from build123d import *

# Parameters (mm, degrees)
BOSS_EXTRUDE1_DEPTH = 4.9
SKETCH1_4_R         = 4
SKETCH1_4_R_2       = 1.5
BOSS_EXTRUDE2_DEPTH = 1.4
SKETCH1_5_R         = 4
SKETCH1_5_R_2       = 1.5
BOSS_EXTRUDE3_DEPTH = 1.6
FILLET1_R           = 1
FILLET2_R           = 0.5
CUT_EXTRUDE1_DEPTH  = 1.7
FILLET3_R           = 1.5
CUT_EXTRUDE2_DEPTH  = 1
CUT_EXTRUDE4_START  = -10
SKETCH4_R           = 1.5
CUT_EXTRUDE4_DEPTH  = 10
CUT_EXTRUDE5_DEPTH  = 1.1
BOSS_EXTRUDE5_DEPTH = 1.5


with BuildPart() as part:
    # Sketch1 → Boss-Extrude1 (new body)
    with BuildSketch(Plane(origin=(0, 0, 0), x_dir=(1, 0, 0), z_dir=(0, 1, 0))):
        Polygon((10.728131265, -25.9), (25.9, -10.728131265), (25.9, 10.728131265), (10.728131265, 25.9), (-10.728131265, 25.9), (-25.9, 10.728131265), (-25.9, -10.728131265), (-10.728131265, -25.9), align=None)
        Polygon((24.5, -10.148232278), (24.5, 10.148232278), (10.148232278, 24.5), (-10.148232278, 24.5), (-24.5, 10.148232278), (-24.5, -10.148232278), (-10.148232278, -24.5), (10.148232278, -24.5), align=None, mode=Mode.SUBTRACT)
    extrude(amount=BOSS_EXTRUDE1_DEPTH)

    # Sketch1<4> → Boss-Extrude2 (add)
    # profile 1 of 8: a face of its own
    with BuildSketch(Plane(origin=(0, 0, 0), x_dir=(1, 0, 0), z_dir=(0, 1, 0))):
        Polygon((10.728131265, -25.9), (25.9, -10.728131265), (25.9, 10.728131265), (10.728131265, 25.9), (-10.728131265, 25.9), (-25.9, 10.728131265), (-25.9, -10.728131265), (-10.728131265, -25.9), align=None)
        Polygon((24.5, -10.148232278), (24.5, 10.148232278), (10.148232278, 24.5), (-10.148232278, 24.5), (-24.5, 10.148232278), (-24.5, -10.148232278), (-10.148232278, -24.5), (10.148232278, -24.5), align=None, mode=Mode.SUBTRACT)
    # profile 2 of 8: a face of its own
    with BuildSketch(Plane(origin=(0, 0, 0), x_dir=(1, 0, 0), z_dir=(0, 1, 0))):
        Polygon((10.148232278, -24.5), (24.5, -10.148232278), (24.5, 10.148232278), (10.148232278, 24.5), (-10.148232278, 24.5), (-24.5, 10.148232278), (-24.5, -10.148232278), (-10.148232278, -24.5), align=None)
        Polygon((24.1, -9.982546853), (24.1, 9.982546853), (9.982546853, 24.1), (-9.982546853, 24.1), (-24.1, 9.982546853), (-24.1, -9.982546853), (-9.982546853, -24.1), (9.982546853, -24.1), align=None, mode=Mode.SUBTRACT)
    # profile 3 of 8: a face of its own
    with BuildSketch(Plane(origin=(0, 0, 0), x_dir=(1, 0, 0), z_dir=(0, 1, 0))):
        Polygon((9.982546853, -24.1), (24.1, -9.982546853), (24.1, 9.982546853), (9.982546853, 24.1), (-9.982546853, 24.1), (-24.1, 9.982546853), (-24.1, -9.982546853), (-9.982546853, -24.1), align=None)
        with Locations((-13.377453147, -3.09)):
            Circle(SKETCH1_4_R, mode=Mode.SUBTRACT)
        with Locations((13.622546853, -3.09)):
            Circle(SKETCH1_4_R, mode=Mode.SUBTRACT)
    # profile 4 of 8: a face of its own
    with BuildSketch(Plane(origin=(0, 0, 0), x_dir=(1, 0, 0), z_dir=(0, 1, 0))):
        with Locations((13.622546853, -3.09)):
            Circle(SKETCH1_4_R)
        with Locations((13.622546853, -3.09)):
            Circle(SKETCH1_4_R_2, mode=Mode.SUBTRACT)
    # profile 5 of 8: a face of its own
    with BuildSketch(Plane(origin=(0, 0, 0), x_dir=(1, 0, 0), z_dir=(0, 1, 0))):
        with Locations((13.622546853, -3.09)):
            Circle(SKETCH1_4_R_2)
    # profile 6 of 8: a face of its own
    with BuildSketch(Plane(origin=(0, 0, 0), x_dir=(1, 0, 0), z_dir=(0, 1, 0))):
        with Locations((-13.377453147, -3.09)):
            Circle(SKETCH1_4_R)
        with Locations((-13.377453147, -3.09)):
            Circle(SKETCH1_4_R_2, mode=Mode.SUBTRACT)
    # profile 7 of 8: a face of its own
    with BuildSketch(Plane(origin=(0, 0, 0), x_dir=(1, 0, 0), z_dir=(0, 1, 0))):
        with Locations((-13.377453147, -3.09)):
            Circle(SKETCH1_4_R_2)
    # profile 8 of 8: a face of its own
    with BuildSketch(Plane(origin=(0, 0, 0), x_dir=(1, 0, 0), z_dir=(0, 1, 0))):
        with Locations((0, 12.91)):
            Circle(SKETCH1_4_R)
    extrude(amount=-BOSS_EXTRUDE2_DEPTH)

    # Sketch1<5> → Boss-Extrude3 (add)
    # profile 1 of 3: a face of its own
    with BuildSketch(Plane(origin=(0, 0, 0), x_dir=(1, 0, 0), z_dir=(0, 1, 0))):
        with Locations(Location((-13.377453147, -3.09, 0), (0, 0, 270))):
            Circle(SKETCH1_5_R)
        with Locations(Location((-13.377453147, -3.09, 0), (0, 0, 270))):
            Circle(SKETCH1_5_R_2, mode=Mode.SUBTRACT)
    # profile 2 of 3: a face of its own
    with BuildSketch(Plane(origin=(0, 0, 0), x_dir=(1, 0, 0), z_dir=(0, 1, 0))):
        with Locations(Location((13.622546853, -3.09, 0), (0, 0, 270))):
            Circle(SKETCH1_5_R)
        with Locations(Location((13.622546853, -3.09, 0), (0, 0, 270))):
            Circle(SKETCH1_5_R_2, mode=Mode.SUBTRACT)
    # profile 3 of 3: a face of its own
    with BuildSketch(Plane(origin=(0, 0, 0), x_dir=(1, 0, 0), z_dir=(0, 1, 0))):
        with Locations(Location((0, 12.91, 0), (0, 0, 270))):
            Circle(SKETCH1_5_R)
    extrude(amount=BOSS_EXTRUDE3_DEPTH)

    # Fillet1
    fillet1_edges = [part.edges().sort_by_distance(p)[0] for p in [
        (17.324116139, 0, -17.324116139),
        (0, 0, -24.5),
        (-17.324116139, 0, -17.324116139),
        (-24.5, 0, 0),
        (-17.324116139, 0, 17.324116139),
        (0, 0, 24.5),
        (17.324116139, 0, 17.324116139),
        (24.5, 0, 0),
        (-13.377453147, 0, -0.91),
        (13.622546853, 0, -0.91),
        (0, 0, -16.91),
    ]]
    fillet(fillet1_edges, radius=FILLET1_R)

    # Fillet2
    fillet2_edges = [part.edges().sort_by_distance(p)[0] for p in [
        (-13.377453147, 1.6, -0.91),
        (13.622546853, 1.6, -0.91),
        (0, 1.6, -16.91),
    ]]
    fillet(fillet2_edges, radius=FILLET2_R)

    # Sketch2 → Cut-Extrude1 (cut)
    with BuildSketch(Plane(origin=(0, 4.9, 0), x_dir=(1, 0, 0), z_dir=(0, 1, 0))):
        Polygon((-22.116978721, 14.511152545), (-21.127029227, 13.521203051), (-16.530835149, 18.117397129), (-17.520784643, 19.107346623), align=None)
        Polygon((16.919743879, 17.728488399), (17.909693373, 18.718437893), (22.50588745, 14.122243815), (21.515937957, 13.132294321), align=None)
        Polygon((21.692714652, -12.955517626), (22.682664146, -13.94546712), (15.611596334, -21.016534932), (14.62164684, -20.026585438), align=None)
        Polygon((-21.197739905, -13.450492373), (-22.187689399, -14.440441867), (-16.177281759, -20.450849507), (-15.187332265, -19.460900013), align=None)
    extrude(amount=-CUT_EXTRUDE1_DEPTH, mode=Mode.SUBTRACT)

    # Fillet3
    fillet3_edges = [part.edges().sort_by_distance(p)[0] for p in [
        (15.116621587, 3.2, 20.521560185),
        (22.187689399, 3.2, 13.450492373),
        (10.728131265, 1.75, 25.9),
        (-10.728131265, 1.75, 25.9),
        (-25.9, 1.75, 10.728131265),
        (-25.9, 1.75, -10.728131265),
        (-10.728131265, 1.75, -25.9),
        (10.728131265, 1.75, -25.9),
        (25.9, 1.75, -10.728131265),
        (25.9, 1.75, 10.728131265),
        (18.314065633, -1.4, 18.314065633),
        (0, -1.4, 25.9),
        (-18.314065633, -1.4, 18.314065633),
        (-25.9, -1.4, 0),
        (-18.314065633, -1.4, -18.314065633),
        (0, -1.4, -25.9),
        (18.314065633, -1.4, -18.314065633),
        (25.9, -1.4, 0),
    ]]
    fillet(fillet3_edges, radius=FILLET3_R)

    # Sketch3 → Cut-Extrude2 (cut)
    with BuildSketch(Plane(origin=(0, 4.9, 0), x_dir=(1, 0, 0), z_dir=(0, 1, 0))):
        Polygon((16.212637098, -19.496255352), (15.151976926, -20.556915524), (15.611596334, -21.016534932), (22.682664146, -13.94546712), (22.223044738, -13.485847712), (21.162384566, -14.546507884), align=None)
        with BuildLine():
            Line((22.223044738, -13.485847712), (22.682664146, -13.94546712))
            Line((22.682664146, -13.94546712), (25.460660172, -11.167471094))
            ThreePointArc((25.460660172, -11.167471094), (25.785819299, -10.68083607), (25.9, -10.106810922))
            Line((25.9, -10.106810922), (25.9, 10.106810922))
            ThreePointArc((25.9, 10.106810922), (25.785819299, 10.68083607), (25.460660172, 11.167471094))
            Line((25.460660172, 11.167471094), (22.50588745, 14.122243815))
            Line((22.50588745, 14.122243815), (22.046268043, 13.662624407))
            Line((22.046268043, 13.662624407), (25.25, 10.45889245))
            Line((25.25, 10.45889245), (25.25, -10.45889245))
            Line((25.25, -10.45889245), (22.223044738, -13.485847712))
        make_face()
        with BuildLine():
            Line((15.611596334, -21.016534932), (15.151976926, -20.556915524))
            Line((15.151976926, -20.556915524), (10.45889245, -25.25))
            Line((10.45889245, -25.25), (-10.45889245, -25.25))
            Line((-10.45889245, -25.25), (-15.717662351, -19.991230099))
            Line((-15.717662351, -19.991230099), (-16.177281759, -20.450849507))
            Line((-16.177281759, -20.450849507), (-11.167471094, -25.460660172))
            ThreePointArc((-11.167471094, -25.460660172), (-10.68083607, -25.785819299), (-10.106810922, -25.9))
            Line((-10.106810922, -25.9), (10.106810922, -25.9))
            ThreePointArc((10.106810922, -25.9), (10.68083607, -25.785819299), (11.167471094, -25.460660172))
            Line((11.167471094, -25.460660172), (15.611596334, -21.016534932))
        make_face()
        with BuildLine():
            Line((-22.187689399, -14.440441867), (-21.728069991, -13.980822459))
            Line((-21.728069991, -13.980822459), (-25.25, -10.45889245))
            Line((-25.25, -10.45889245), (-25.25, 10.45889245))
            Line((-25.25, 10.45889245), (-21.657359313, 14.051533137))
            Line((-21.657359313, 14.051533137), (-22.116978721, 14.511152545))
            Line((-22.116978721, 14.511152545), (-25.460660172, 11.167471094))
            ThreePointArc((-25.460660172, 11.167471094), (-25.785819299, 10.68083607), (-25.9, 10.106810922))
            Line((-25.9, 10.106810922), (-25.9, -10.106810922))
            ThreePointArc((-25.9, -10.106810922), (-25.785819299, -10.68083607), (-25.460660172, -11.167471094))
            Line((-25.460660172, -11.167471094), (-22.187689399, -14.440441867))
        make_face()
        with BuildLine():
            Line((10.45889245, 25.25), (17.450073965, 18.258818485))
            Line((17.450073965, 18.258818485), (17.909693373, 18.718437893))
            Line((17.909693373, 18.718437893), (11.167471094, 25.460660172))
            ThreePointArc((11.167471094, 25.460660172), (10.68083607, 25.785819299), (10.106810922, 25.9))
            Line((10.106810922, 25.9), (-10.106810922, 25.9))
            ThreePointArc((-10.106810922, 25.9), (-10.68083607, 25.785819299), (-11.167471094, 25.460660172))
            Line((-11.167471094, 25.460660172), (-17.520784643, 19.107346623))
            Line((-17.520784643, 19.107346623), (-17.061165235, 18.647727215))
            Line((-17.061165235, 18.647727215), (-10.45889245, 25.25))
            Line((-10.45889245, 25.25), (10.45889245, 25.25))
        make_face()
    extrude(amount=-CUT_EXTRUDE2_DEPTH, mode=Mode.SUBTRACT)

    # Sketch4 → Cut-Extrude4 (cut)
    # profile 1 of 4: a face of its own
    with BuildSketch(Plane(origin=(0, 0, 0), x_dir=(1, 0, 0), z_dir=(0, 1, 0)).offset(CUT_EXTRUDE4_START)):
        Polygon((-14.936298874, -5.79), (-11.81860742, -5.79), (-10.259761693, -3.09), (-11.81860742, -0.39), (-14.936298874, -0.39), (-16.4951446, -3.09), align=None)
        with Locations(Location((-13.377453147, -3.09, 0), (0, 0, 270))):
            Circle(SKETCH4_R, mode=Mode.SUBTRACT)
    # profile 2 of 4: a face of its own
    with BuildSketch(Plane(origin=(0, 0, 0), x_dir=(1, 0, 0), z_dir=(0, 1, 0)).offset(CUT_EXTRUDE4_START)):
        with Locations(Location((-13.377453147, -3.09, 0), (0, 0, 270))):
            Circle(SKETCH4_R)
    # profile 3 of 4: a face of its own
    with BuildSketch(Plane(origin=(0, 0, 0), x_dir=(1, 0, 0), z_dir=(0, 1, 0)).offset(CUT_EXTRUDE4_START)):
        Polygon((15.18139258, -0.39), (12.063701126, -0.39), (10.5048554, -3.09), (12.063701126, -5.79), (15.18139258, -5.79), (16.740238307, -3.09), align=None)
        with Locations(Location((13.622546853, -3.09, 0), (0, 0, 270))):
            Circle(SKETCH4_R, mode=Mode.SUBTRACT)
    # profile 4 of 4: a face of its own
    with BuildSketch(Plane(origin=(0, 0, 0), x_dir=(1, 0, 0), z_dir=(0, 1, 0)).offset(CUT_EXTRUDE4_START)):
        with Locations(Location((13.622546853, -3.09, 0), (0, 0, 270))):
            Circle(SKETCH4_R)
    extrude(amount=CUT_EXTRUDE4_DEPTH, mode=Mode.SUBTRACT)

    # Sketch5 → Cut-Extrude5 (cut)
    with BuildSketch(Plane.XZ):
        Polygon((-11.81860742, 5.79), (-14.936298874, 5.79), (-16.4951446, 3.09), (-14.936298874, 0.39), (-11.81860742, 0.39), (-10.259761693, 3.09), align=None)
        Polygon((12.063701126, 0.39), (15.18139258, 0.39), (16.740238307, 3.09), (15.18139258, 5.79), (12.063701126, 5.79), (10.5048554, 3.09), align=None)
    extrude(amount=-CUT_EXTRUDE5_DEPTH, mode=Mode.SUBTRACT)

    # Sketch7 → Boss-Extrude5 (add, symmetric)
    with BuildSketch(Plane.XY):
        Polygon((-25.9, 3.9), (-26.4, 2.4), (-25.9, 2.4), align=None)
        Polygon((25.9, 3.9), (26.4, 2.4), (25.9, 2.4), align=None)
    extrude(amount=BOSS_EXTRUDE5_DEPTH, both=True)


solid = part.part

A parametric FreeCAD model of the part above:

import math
import FreeCAD as App
import Part
import Sketcher

V = App.Vector
Q = App.Units.Quantity


def edges_at(feature, points):
    """Names of the edges that pass closest to the given points."""
    edges = feature.Shape.Edges
    near = lambda p: min(range(len(edges)), key=lambda i: edges[i].distToShape(Part.Vertex(*p))[0])
    return sorted({f"Edge{near(p) + 1}" for p in points})

doc = App.newDocument("Part")
params = doc.addObject("Spreadsheet::Sheet", "Params")
for row, (alias, value) in enumerate([
    ("pad1_length", "4.9 mm"),
    ("pad2_length", "1.4 mm"),
    ("sketch3_diameter", "8 mm"),
    ("sketch3_diameter2", "3 mm"),
    ("pad3_length", "1.6 mm"),
    ("fillet_radius", "1 mm"),
    ("fillet2_radius", "0.5 mm"),
    ("sketch4_length", "10 mm"),
    ("sketch4_length2", "1.4 mm"),
    ("sketch4_length3", "6.5 mm"),
    ("sketch4_length4", "8.5 mm"),
    ("pocket1_length", "1.7 mm"),
    ("fillet3_radius", "1.5 mm"),
    ("sketch5_radius", "1.5 mm"),
    ("sketch5_length", "0.65 mm"),
    ("pocket2_length", "1 mm"),
    ("pocket3_length", "10 mm"),
    ("pocket4_length", "1.1 mm"),
    ("sketch8_width", "0.5 mm"),
    ("sketch8_height", "1.5 mm"),
    ("pad4_length", "3 mm"),
], start=1):
    params.set(f"A{row}", alias)
    params.set(f"B{row}", "=" + value)
    params.setAlias(f"B{row}", alias)

body = doc.addObject("PartDesign::Body", "Body")

# Sketch on XZ plane
sketch1 = body.newObject("Sketcher::SketchObject", "Sketch")
sketch1.AttachmentSupport = (doc.getObject("XZ_Plane"), [""])
sketch1.MapMode = "FlatFace"
sketch1.addGeometry(Part.LineSegment(V(10.728131, 25.9, 0), V(25.9, 10.728131, 0)), False)
sketch1.addGeometry(Part.LineSegment(V(25.9, 10.728131, 0), V(25.9, -10.728131, 0)), False)
sketch1.addGeometry(Part.LineSegment(V(25.9, -10.728131, 0), V(10.728131, -25.9, 0)), False)
sketch1.addGeometry(Part.LineSegment(V(10.728131, -25.9, 0), V(-10.728131, -25.9, 0)), False)
sketch1.addGeometry(Part.LineSegment(V(-10.728131, -25.9, 0), V(-25.9, -10.728131, 0)), False)
sketch1.addGeometry(Part.LineSegment(V(-25.9, -10.728131, 0), V(-25.9, 10.728131, 0)), False)
sketch1.addGeometry(Part.LineSegment(V(-25.9, 10.728131, 0), V(-10.728131, 25.9, 0)), False)
sketch1.addGeometry(Part.LineSegment(V(-10.728131, 25.9, 0), V(10.728131, 25.9, 0)), False)
sketch1.addGeometry(Part.LineSegment(V(24.5, -10.148232, 0), V(24.5, 10.148232, 0)), False)
sketch1.addGeometry(Part.LineSegment(V(24.5, 10.148232, 0), V(10.148232, 24.5, 0)), False)
sketch1.addGeometry(Part.LineSegment(V(10.148232, 24.5, 0), V(-10.148232, 24.5, 0)), False)
sketch1.addGeometry(Part.LineSegment(V(-10.148232, 24.5, 0), V(-24.5, 10.148232, 0)), False)
sketch1.addGeometry(Part.LineSegment(V(-24.5, 10.148232, 0), V(-24.5, -10.148232, 0)), False)
sketch1.addGeometry(Part.LineSegment(V(-24.5, -10.148232, 0), V(-10.148232, -24.5, 0)), False)
sketch1.addGeometry(Part.LineSegment(V(-10.148232, -24.5, 0), V(10.148232, -24.5, 0)), False)
sketch1.addGeometry(Part.LineSegment(V(10.148232, -24.5, 0), V(24.5, -10.148232, 0)), False)
sketch1.addConstraint(Sketcher.Constraint("Coincident", 0, 2, 1, 1))
sketch1.addConstraint(Sketcher.Constraint("Coincident", 1, 2, 2, 1))
sketch1.addConstraint(Sketcher.Constraint("Coincident", 2, 2, 3, 1))
sketch1.addConstraint(Sketcher.Constraint("Coincident", 3, 2, 4, 1))
sketch1.addConstraint(Sketcher.Constraint("Coincident", 4, 2, 5, 1))
sketch1.addConstraint(Sketcher.Constraint("Coincident", 5, 2, 6, 1))
sketch1.addConstraint(Sketcher.Constraint("Coincident", 6, 2, 7, 1))
sketch1.addConstraint(Sketcher.Constraint("Coincident", 7, 2, 0, 1))
sketch1.addConstraint(Sketcher.Constraint("Coincident", 8, 2, 9, 1))
sketch1.addConstraint(Sketcher.Constraint("Coincident", 9, 2, 10, 1))
sketch1.addConstraint(Sketcher.Constraint("Coincident", 10, 2, 11, 1))
sketch1.addConstraint(Sketcher.Constraint("Coincident", 11, 2, 12, 1))
sketch1.addConstraint(Sketcher.Constraint("Coincident", 12, 2, 13, 1))
sketch1.addConstraint(Sketcher.Constraint("Coincident", 13, 2, 14, 1))
sketch1.addConstraint(Sketcher.Constraint("Coincident", 14, 2, 15, 1))
sketch1.addConstraint(Sketcher.Constraint("Coincident", 15, 2, 8, 1))
sketch1.addConstraint(Sketcher.Constraint("Vertical", 1))
sketch1.addConstraint(Sketcher.Constraint("Horizontal", 3))
sketch1.addConstraint(Sketcher.Constraint("Vertical", 5))
sketch1.addConstraint(Sketcher.Constraint("Horizontal", 7))
sketch1.addConstraint(Sketcher.Constraint("Vertical", 8))
sketch1.addConstraint(Sketcher.Constraint("Horizontal", 10))
sketch1.addConstraint(Sketcher.Constraint("Vertical", 12))
sketch1.addConstraint(Sketcher.Constraint("Horizontal", 14))
sketch1.addConstraint(Sketcher.Constraint("Symmetric", 0, 2, 4, 2, -1, 1))
sketch1.addConstraint(Sketcher.Constraint("Symmetric", 2, 2, 6, 2, -1, 1))
sketch1.addConstraint(Sketcher.Constraint("Symmetric", 8, 2, 12, 2, -1, 1))
sketch1.addConstraint(Sketcher.Constraint("Symmetric", 9, 2, 13, 2, -1, 1))
sketch1.addConstraint(Sketcher.Constraint("Perpendicular", 0, 2))
sketch1.addConstraint(Sketcher.Constraint("Perpendicular", 2, 4))
sketch1.addConstraint(Sketcher.Constraint("Perpendicular", 4, 6))
sketch1.addConstraint(Sketcher.Constraint("Perpendicular", 6, 9))
sketch1.addConstraint(Sketcher.Constraint("Perpendicular", 9, 11))
sketch1.addConstraint(Sketcher.Constraint("Perpendicular", 13, 15))
sketch1.addConstraint(Sketcher.Constraint("Horizontal", 1, 2, 4, 2))
sketch1.addConstraint(Sketcher.Constraint("Horizontal", 8, 2, 11, 2))
sketch1.addConstraint(Sketcher.Constraint("Horizontal", 12, 2, 15, 2))
sketch1.addConstraint(Sketcher.Constraint("Vertical", 3, 2, 6, 2))
sketch1.addConstraint(Sketcher.Constraint("Equal", 7, 1))
sketch1.addConstraint(Sketcher.Constraint("Equal", 14, 8))
sketch1.addConstraint(Sketcher.Constraint("DistanceX", -1, 1, 0, 2, 25.9))
sketch1.addConstraint(Sketcher.Constraint("DistanceX", -1, 1, 8, 2, 24.5))
sketch1.addConstraint(Sketcher.Constraint("DistanceY", 8, 2, 0, 2, 0.579899))
sketch1.addConstraint(Sketcher.Constraint("DistanceX", 3, 2, 3, 1, 21.456263))
pad1 = body.newObject("PartDesign::Pad", "Pad")
pad1.Profile = sketch1
pad1.setExpression("Length", "Params.pad1_length")
pad1.Reversed = True

# Sketch on XZ plane
sketch2 = body.newObject("Sketcher::SketchObject", "Sketch001")
sketch2.AttachmentSupport = (doc.getObject("XZ_Plane"), [""])
sketch2.MapMode = "FlatFace"
sketch2.addGeometry(Part.LineSegment(V(10.728131, 25.9, 0), V(25.9, 10.728131, 0)), False)
sketch2.addGeometry(Part.LineSegment(V(25.9, 10.728131, 0), V(25.9, -10.728131, 0)), False)
sketch2.addGeometry(Part.LineSegment(V(25.9, -10.728131, 0), V(10.728131, -25.9, 0)), False)
sketch2.addGeometry(Part.LineSegment(V(10.728131, -25.9, 0), V(-10.728131, -25.9, 0)), False)
sketch2.addGeometry(Part.LineSegment(V(-10.728131, -25.9, 0), V(-25.9, -10.728131, 0)), False)
sketch2.addGeometry(Part.LineSegment(V(-25.9, -10.728131, 0), V(-25.9, 10.728131, 0)), False)
sketch2.addGeometry(Part.LineSegment(V(-25.9, 10.728131, 0), V(-10.728131, 25.9, 0)), False)
sketch2.addGeometry(Part.LineSegment(V(-10.728131, 25.9, 0), V(10.728131, 25.9, 0)), False)
sketch2.addConstraint(Sketcher.Constraint("Coincident", 0, 2, 1, 1))
sketch2.addConstraint(Sketcher.Constraint("Coincident", 1, 2, 2, 1))
sketch2.addConstraint(Sketcher.Constraint("Coincident", 2, 2, 3, 1))
sketch2.addConstraint(Sketcher.Constraint("Coincident", 3, 2, 4, 1))
sketch2.addConstraint(Sketcher.Constraint("Coincident", 4, 2, 5, 1))
sketch2.addConstraint(Sketcher.Constraint("Coincident", 5, 2, 6, 1))
sketch2.addConstraint(Sketcher.Constraint("Coincident", 6, 2, 7, 1))
sketch2.addConstraint(Sketcher.Constraint("Coincident", 7, 2, 0, 1))
sketch2.addConstraint(Sketcher.Constraint("Vertical", 1))
sketch2.addConstraint(Sketcher.Constraint("Horizontal", 3))
sketch2.addConstraint(Sketcher.Constraint("Vertical", 5))
sketch2.addConstraint(Sketcher.Constraint("Horizontal", 7))
sketch2.addConstraint(Sketcher.Constraint("Symmetric", 0, 2, 4, 2, -1, 1))
sketch2.addConstraint(Sketcher.Constraint("Symmetric", 2, 2, 6, 2, -1, 1))
sketch2.addConstraint(Sketcher.Constraint("Perpendicular", 0, 2))
sketch2.addConstraint(Sketcher.Constraint("Perpendicular", 2, 4))
sketch2.addConstraint(Sketcher.Constraint("Perpendicular", 4, 6))
sketch2.addConstraint(Sketcher.Constraint("Horizontal", 1, 2, 4, 2))
sketch2.addConstraint(Sketcher.Constraint("Vertical", 3, 2, 6, 2))
sketch2.addConstraint(Sketcher.Constraint("Equal", 7, 1))
sketch2.addConstraint(Sketcher.Constraint("DistanceX", -1, 1, 0, 2, 25.9))
sketch2.addConstraint(Sketcher.Constraint("DistanceX", 3, 2, 3, 1, 21.456263))
pad2 = body.newObject("PartDesign::Pad", "Pad001")
pad2.Profile = sketch2
pad2.setExpression("Length", "Params.pad2_length")

# Sketch on XZ plane
sketch3 = body.newObject("Sketcher::SketchObject", "Sketch002")
sketch3.AttachmentSupport = (doc.getObject("XZ_Plane"), [""])
sketch3.MapMode = "FlatFace"
sketch3.addGeometry(Part.Circle(V(-13.377453, 3.09, 0), V(0, 0, 1), 4), False)
sketch3.addGeometry(Part.Circle(V(-13.377453, 3.09, 0), V(0, 0, 1), 1.5), False)
sketch3.addGeometry(Part.Circle(V(13.622547, 3.09, 0), V(0, 0, 1), 4), False)
sketch3.addGeometry(Part.Circle(V(13.622547, 3.09, 0), V(0, 0, 1), 1.5), False)
sketch3.addGeometry(Part.Circle(V(0, -12.91, 0), V(0, 0, 1), 4), False)
sketch3.addConstraint(Sketcher.Constraint("Coincident", 1, 3, 0, 3))
sketch3.addConstraint(Sketcher.Constraint("Coincident", 3, 3, 2, 3))
sketch3.addConstraint(Sketcher.Constraint("Equal", 0, 2))
sketch3.addConstraint(Sketcher.Constraint("Equal", 1, 3))
sketch3.addConstraint(Sketcher.Constraint("Equal", 2, 4))
sketch3.addConstraint(Sketcher.Constraint("PointOnObject", 4, 3, -2))
sketch3.addConstraint(Sketcher.Constraint("Horizontal", 1, 3, 2, 3))
sketch3.addConstraint(Sketcher.Constraint("Diameter", 0, 8.0))
sketch3.addConstraint(Sketcher.Constraint("Diameter", 1, 3.0))
sketch3.addConstraint(Sketcher.Constraint("DistanceX", 0, 3, 2, 3, 27.0))
sketch3.addConstraint(Sketcher.Constraint("DistanceY", 4, 3, 0, 3, 16.0))
sketch3.addConstraint(Sketcher.Constraint("DistanceY", -1, 1, 0, 3, 3.09))
sketch3.addConstraint(Sketcher.Constraint("DistanceX", 0, 3, -1, 1, 13.377453))
sketch3.setExpression("Constraints[7]", "Params.sketch3_diameter")
sketch3.setExpression("Constraints[8]", "Params.sketch3_diameter2")
pad3 = body.newObject("PartDesign::Pad", "Pad002")
pad3.Profile = sketch3
pad3.setExpression("Length", "Params.pad3_length")
pad3.Reversed = True
doc.recompute()

fillet = body.newObject("PartDesign::Fillet", "Fillet")
fillet.Base = (pad3, edges_at(pad3, [
    (17.324, 0, -17.324),
    (0, 0, -24.5),
    (-17.324, 0, -17.324),
    (-24.5, 0, 0),
    (-17.324, 0, 17.324),
    (0, 0, 24.5),
    (17.324, 0, 17.324),
    (24.5, 0, 0),
    (-13.377, 0, -0.91),
    (13.623, 0, -0.91),
    (0, 0, -16.91),
]))
fillet.setExpression("Radius", "Params.fillet_radius")
doc.recompute()

fillet2 = body.newObject("PartDesign::Fillet", "Fillet001")
fillet2.Base = (fillet, edges_at(fillet, [(-13.377, 1.6, -0.91), (13.623, 1.6, -0.91), (0, 1.6, -16.91)]))
fillet2.setExpression("Radius", "Params.fillet2_radius")

# Sketch on XZ plane
sketch4 = body.newObject("Sketcher::SketchObject", "Sketch003")
sketch4.AttachmentSupport = (doc.getObject("XZ_Plane"), [""])
sketch4.MapMode = "FlatFace"
sketch4.AttachmentOffset = App.Placement(V(0, 0, -4.9), App.Rotation())
sketch4.addGeometry(Part.LineSegment(V(-22.116979, -14.511153, 0), V(-21.127029, -13.521203, 0)), False)
sketch4.addGeometry(Part.LineSegment(V(-21.127029, -13.521203, 0), V(-16.530835, -18.117397, 0)), False)
sketch4.addGeometry(Part.LineSegment(V(-16.530835, -18.117397, 0), V(-17.520785, -19.107347, 0)), False)
sketch4.addGeometry(Part.LineSegment(V(-17.520785, -19.107347, 0), V(-22.116979, -14.511153, 0)), False)
sketch4.addGeometry(Part.LineSegment(V(17.909693, -18.718438, 0), V(16.919744, -17.728488, 0)), False)
sketch4.addGeometry(Part.LineSegment(V(16.919744, -17.728488, 0), V(21.515938, -13.132294, 0)), False)
sketch4.addGeometry(Part.LineSegment(V(21.515938, -13.132294, 0), V(22.505887, -14.122244, 0)), False)
sketch4.addGeometry(Part.LineSegment(V(22.505887, -14.122244, 0), V(17.909693, -18.718438, 0)), False)
sketch4.addGeometry(Part.LineSegment(V(22.682664, 13.945467, 0), V(21.692715, 12.955518, 0)), False)
sketch4.addGeometry(Part.LineSegment(V(21.692715, 12.955518, 0), V(14.621647, 20.026585, 0)), False)
sketch4.addGeometry(Part.LineSegment(V(14.621647, 20.026585, 0), V(15.611596, 21.016535, 0)), False)
sketch4.addGeometry(Part.LineSegment(V(15.611596, 21.016535, 0), V(22.682664, 13.945467, 0)), False)
sketch4.addGeometry(Part.LineSegment(V(-21.19774, 13.450492, 0), V(-22.187689, 14.440442, 0)), False)
sketch4.addGeometry(Part.LineSegment(V(-22.187689, 14.440442, 0), V(-16.177282, 20.45085, 0)), False)
sketch4.addGeometry(Part.LineSegment(V(-16.177282, 20.45085, 0), V(-15.187332, 19.4609, 0)), False)
sketch4.addGeometry(Part.LineSegment(V(-15.187332, 19.4609, 0), V(-21.19774, 13.450492, 0)), False)
sketch4.addConstraint(Sketcher.Constraint("Coincident", 0, 2, 1, 1))
sketch4.addConstraint(Sketcher.Constraint("Coincident", 1, 2, 2, 1))
sketch4.addConstraint(Sketcher.Constraint("Coincident", 2, 2, 3, 1))
sketch4.addConstraint(Sketcher.Constraint("Coincident", 3, 2, 0, 1))
sketch4.addConstraint(Sketcher.Constraint("Coincident", 4, 2, 5, 1))
sketch4.addConstraint(Sketcher.Constraint("Coincident", 5, 2, 6, 1))
sketch4.addConstraint(Sketcher.Constraint("Coincident", 6, 2, 7, 1))
sketch4.addConstraint(Sketcher.Constraint("Coincident", 7, 2, 4, 1))
sketch4.addConstraint(Sketcher.Constraint("Coincident", 8, 2, 9, 1))
sketch4.addConstraint(Sketcher.Constraint("Coincident", 9, 2, 10, 1))
sketch4.addConstraint(Sketcher.Constraint("Coincident", 10, 2, 11, 1))
sketch4.addConstraint(Sketcher.Constraint("Coincident", 11, 2, 8, 1))
sketch4.addConstraint(Sketcher.Constraint("Coincident", 12, 2, 13, 1))
sketch4.addConstraint(Sketcher.Constraint("Coincident", 13, 2, 14, 1))
sketch4.addConstraint(Sketcher.Constraint("Coincident", 14, 2, 15, 1))
sketch4.addConstraint(Sketcher.Constraint("Coincident", 15, 2, 12, 1))
sketch4.addConstraint(Sketcher.Constraint("Perpendicular", 0, 1))
sketch4.addConstraint(Sketcher.Constraint("Perpendicular", 1, 2))
sketch4.addConstraint(Sketcher.Constraint("Perpendicular", 2, 3))
sketch4.addConstraint(Sketcher.Constraint("Parallel", 3, 4))
sketch4.addConstraint(Sketcher.Constraint("Perpendicular", 4, 5))
sketch4.addConstraint(Sketcher.Constraint("Perpendicular", 5, 6))
sketch4.addConstraint(Sketcher.Constraint("Perpendicular", 6, 7))
sketch4.addConstraint(Sketcher.Constraint("Parallel", 7, 8))
sketch4.addConstraint(Sketcher.Constraint("Perpendicular", 8, 9))
sketch4.addConstraint(Sketcher.Constraint("Perpendicular", 9, 10))
sketch4.addConstraint(Sketcher.Constraint("Perpendicular", 10, 11))
sketch4.addConstraint(Sketcher.Constraint("Parallel", 11, 12))
sketch4.addConstraint(Sketcher.Constraint("Perpendicular", 12, 13))
sketch4.addConstraint(Sketcher.Constraint("Perpendicular", 13, 14))
sketch4.addConstraint(Sketcher.Constraint("Perpendicular", 14, 15))
sketch4.addConstraint(Sketcher.Constraint("Equal", 2, 4))
sketch4.addConstraint(Sketcher.Constraint("Equal", 3, 5))
sketch4.addConstraint(Sketcher.Constraint("Equal", 6, 8))
sketch4.addConstraint(Sketcher.Constraint("Equal", 10, 12))
sketch4.addConstraint(Sketcher.Constraint("Angle", 0, Q("45 deg")))
sketch4.addConstraint(Sketcher.Constraint("Distance", 9, 10.0))
sketch4.addConstraint(Sketcher.Constraint("Distance", 0, 1.4))
sketch4.addConstraint(Sketcher.Constraint("Distance", 1, 6.5))
sketch4.addConstraint(Sketcher.Constraint("Distance", 13, 8.5))
sketch4.addConstraint(Sketcher.Constraint("DistanceY", -1, 1, 14, 2, 19.4609))
sketch4.addConstraint(Sketcher.Constraint("DistanceX", 0, 2, -1, 1, 21.127029))
sketch4.addConstraint(Sketcher.Constraint("DistanceY", 4, 2, -1, 1, 17.728488))
sketch4.addConstraint(Sketcher.Constraint("DistanceX", 12, 2, -1, 1, 22.187689))
sketch4.addConstraint(Sketcher.Constraint("DistanceX", 1, 2, 4, 2, 33.450579))
sketch4.addConstraint(Sketcher.Constraint("DistanceY", 1, 2, 4, 2, 0.388909))
sketch4.addConstraint(Sketcher.Constraint("DistanceY", 5, 2, 8, 2, 26.087812))
sketch4.addConstraint(Sketcher.Constraint("DistanceX", 4, 2, 8, 2, 4.772971))
sketch4.setExpression("Constraints[36]", "Params.sketch4_length")
sketch4.setExpression("Constraints[37]", "Params.sketch4_length2")
sketch4.setExpression("Constraints[38]", "Params.sketch4_length3")
sketch4.setExpression("Constraints[39]", "Params.sketch4_length4")
pocket1 = body.newObject("PartDesign::Pocket", "Pocket")
pocket1.Profile = sketch4
pocket1.setExpression("Length", "Params.pocket1_length")
pocket1.Reversed = True
doc.recompute()

fillet3 = body.newObject("PartDesign::Fillet", "Fillet002")
fillet3.Base = (pocket1, edges_at(pocket1, [
    (15.117, 3.2, 20.522),
    (22.188, 3.2, 13.45),
    (10.728, 1.75, 25.9),
    (-10.728, 1.75, 25.9),
    (-25.9, 1.75, 10.728),
    (-25.9, 1.75, -10.728),
    (-10.728, 1.75, -25.9),
    (10.728, 1.75, -25.9),
    (25.9, 1.75, -10.728),
    (25.9, 1.75, 10.728),
    (18.314, -1.4, 18.314),
    (0, -1.4, 25.9),
    (-18.314, -1.4, 18.314),
    (-25.9, -1.4, 0),
    (-18.314, -1.4, -18.314),
    (0, -1.4, -25.9),
    (18.314, -1.4, -18.314),
    (25.9, -1.4, 0),
]))
fillet3.setExpression("Radius", "Params.fillet3_radius")

# Sketch on XZ plane
sketch5 = body.newObject("Sketcher::SketchObject", "Sketch004")
sketch5.AttachmentSupport = (doc.getObject("XZ_Plane"), [""])
sketch5.MapMode = "FlatFace"
sketch5.AttachmentOffset = App.Placement(V(0, 0, -4.9), App.Rotation())
sketch5.addGeometry(Part.ArcOfCircle(Part.Circle(V(24.4, 10.106811, 0), V(0, 0, 1), 1.5), math.radians(0), math.radians(45)), False)
sketch5.addGeometry(Part.LineSegment(V(25.9, 10.106811, 0), V(25.9, -10.106811, 0)), False)
sketch5.addGeometry(Part.ArcOfCircle(Part.Circle(V(24.4, -10.106811, 0), V(0, 0, 1), 1.5), math.radians(-45), math.radians(0)), False)
sketch5.addGeometry(Part.LineSegment(V(25.46066, -11.167471, 0), V(22.505887, -14.122244, 0)), False)
sketch5.addGeometry(Part.LineSegment(V(22.505887, -14.122244, 0), V(22.046268, -13.662624, 0)), False)
sketch5.addGeometry(Part.LineSegment(V(22.046268, -13.662624, 0), V(25.25, -10.458892, 0)), False)
sketch5.addGeometry(Part.LineSegment(V(25.25, -10.458892, 0), V(25.25, 10.458892, 0)), False)
sketch5.addGeometry(Part.LineSegment(V(25.25, 10.458892, 0), V(10.458892, 25.25, 0)), False)
sketch5.addGeometry(Part.LineSegment(V(10.458892, 25.25, 0), V(-10.458892, 25.25, 0)), False)
sketch5.addGeometry(Part.LineSegment(V(-10.458892, 25.25, 0), V(-15.717662, 19.99123, 0)), False)
sketch5.addGeometry(Part.LineSegment(V(-15.717662, 19.99123, 0), V(-16.177282, 20.45085, 0)), False)
sketch5.addGeometry(Part.LineSegment(V(-16.177282, 20.45085, 0), V(-11.167471, 25.46066, 0)), False)
sketch5.addGeometry(Part.ArcOfCircle(Part.Circle(V(-10.106811, 24.4, 0), V(0, 0, 1), 1.5), math.radians(90), math.radians(135)), False)
sketch5.addGeometry(Part.LineSegment(V(-10.106811, 25.9, 0), V(10.106811, 25.9, 0)), False)
sketch5.addGeometry(Part.ArcOfCircle(Part.Circle(V(10.106811, 24.4, 0), V(0, 0, 1), 1.5), math.radians(45), math.radians(90)), False)
sketch5.addGeometry(Part.LineSegment(V(11.167471, 25.46066, 0), V(25.46066, 11.167471, 0)), False)
sketch5.addGeometry(Part.LineSegment(V(-22.187689, 14.440442, 0), V(-21.72807, 13.980822, 0)), False)
sketch5.addGeometry(Part.LineSegment(V(-21.72807, 13.980822, 0), V(-25.25, 10.458892, 0)), False)
sketch5.addGeometry(Part.LineSegment(V(-25.25, 10.458892, 0), V(-25.25, -10.458892, 0)), False)
sketch5.addGeometry(Part.LineSegment(V(-25.25, -10.458892, 0), V(-21.657359, -14.051533, 0)), False)
sketch5.addGeometry(Part.LineSegment(V(-21.657359, -14.051533, 0), V(-22.116979, -14.511153, 0)), False)
sketch5.addGeometry(Part.LineSegment(V(-22.116979, -14.511153, 0), V(-25.46066, -11.167471, 0)), False)
sketch5.addGeometry(Part.ArcOfCircle(Part.Circle(V(-24.4, -10.106811, 0), V(0, 0, 1), 1.5), math.radians(180), math.radians(225)), False)
sketch5.addGeometry(Part.LineSegment(V(-25.9, -10.106811, 0), V(-25.9, 10.106811, 0)), False)
sketch5.addGeometry(Part.ArcOfCircle(Part.Circle(V(-24.4, 10.106811, 0), V(0, 0, 1), 1.5), math.radians(135), math.radians(180)), False)
sketch5.addGeometry(Part.LineSegment(V(-25.46066, 11.167471, 0), V(-22.187689, 14.440442, 0)), False)
sketch5.addGeometry(Part.LineSegment(V(10.458892, -25.25, 0), V(17.450074, -18.258818, 0)), False)
sketch5.addGeometry(Part.LineSegment(V(17.450074, -18.258818, 0), V(17.909693, -18.718438, 0)), False)
sketch5.addGeometry(Part.LineSegment(V(17.909693, -18.718438, 0), V(11.167471, -25.46066, 0)), False)
sketch5.addGeometry(Part.ArcOfCircle(Part.Circle(V(10.106811, -24.4, 0), V(0, 0, 1), 1.5), math.radians(-90), math.radians(-45)), False)
sketch5.addGeometry(Part.LineSegment(V(10.106811, -25.9, 0), V(-10.106811, -25.9, 0)), False)
sketch5.addGeometry(Part.ArcOfCircle(Part.Circle(V(-10.106811, -24.4, 0), V(0, 0, 1), 1.5), math.radians(-135), math.radians(-90)), False)
sketch5.addGeometry(Part.LineSegment(V(-11.167471, -25.46066, 0), V(-17.520785, -19.107347, 0)), False)
sketch5.addGeometry(Part.LineSegment(V(-17.520785, -19.107347, 0), V(-17.061165, -18.647727, 0)), False)
sketch5.addGeometry(Part.LineSegment(V(-17.061165, -18.647727, 0), V(-10.458892, -25.25, 0)), False)
sketch5.addGeometry(Part.LineSegment(V(-10.458892, -25.25, 0), V(10.458892, -25.25, 0)), False)
sketch5.addConstraint(Sketcher.Constraint("Tangent", 0, 1, 1, 1))
sketch5.addConstraint(Sketcher.Constraint("Tangent", 1, 2, 2, 2))
sketch5.addConstraint(Sketcher.Constraint("Tangent", 2, 1, 3, 1))
sketch5.addConstraint(Sketcher.Constraint("Coincident", 3, 2, 4, 1))
sketch5.addConstraint(Sketcher.Constraint("Coincident", 4, 2, 5, 1))
sketch5.addConstraint(Sketcher.Constraint("Coincident", 5, 2, 6, 1))
sketch5.addConstraint(Sketcher.Constraint("Coincident", 6, 2, 7, 1))
sketch5.addConstraint(Sketcher.Constraint("Coincident", 7, 2, 8, 1))
sketch5.addConstraint(Sketcher.Constraint("Coincident", 8, 2, 9, 1))
sketch5.addConstraint(Sketcher.Constraint("Coincident", 9, 2, 10, 1))
sketch5.addConstraint(Sketcher.Constraint("Coincident", 10, 2, 11, 1))
sketch5.addConstraint(Sketcher.Constraint("Tangent", 11, 2, 12, 2))
sketch5.addConstraint(Sketcher.Constraint("Tangent", 12, 1, 13, 1))
sketch5.addConstraint(Sketcher.Constraint("Tangent", 13, 2, 14, 2))
sketch5.addConstraint(Sketcher.Constraint("Tangent", 14, 1, 15, 1))
sketch5.addConstraint(Sketcher.Constraint("Tangent", 15, 2, 0, 2))
sketch5.addConstraint(Sketcher.Constraint("Coincident", 16, 2, 17, 1))
sketch5.addConstraint(Sketcher.Constraint("Coincident", 17, 2, 18, 1))
sketch5.addConstraint(Sketcher.Constraint("Coincident", 18, 2, 19, 1))
sketch5.addConstraint(Sketcher.Constraint("Coincident", 19, 2, 20, 1))
sketch5.addConstraint(Sketcher.Constraint("Coincident", 20, 2, 21, 1))
sketch5.addConstraint(Sketcher.Constraint("Tangent", 21, 2, 22, 2))
sketch5.addConstraint(Sketcher.Constraint("Tangent", 22, 1, 23, 1))
sketch5.addConstraint(Sketcher.Constraint("Tangent", 23, 2, 24, 2))
sketch5.addConstraint(Sketcher.Constraint("Tangent", 24, 1, 25, 1))
sketch5.addConstraint(Sketcher.Constraint("Coincident", 25, 2, 16, 1))
sketch5.addConstraint(Sketcher.Constraint("Coincident", 26, 2, 27, 1))
sketch5.addConstraint(Sketcher.Constraint("Coincident", 27, 2, 28, 1))
sketch5.addConstraint(Sketcher.Constraint("Tangent", 28, 2, 29, 2))
sketch5.addConstraint(Sketcher.Constraint("Tangent", 29, 1, 30, 1))
sketch5.addConstraint(Sketcher.Constraint("Tangent", 30, 2, 31, 2))
sketch5.addConstraint(Sketcher.Constraint("Tangent", 31, 1, 32, 1))
sketch5.addConstraint(Sketcher.Constraint("Coincident", 32, 2, 33, 1))
sketch5.addConstraint(Sketcher.Constraint("Coincident", 33, 2, 34, 1))
sketch5.addConstraint(Sketcher.Constraint("Coincident", 34, 2, 35, 1))
sketch5.addConstraint(Sketcher.Constraint("Coincident", 35, 2, 26, 1))
sketch5.addConstraint(Sketcher.Constraint("Vertical", 1))
sketch5.addConstraint(Sketcher.Constraint("Vertical", 6))
sketch5.addConstraint(Sketcher.Constraint("Horizontal", 8))
sketch5.addConstraint(Sketcher.Constraint("Horizontal", 13))
sketch5.addConstraint(Sketcher.Constraint("Vertical", 18))
sketch5.addConstraint(Sketcher.Constraint("Vertical", 23))
sketch5.addConstraint(Sketcher.Constraint("Horizontal", 30))
sketch5.addConstraint(Sketcher.Constraint("Horizontal", 35))
sketch5.addConstraint(Sketcher.Constraint("Equal", 0, 2))
sketch5.addConstraint(Sketcher.Constraint("Equal", 2, 12))
sketch5.addConstraint(Sketcher.Constraint("Equal", 12, 14))
sketch5.addConstraint(Sketcher.Constraint("Equal", 14, 22))
sketch5.addConstraint(Sketcher.Constraint("Equal", 22, 24))
sketch5.addConstraint(Sketcher.Constraint("Equal", 24, 29))
sketch5.addConstraint(Sketcher.Constraint("Equal", 29, 31))
sketch5.addConstraint(Sketcher.Constraint("Symmetric", 0, 3, 22, 3, -1, 1))
sketch5.addConstraint(Sketcher.Constraint("Symmetric", 12, 3, 29, 3, -1, 1))
sketch5.addConstraint(Sketcher.Constraint("Symmetric", 5, 2, 17, 2, -1, 1))
sketch5.addConstraint(Sketcher.Constraint("Symmetric", 2, 1, 24, 1, -1, 1))
sketch5.addConstraint(Sketcher.Constraint("Symmetric", 14, 1, 31, 1, -1, 1))
sketch5.addConstraint(Sketcher.Constraint("Symmetric", 7, 2, 34, 2, -1, 1))
sketch5.addConstraint(Sketcher.Constraint("Symmetric", 11, 2, 14, 1, -2))
sketch5.addConstraint(Sketcher.Constraint("Symmetric", 2, 1, 21, 2, -2))
sketch5.addConstraint(Sketcher.Constraint("Perpendicular", 3, 4))
sketch5.addConstraint(Sketcher.Constraint("Perpendicular", 4, 5))
sketch5.addConstraint(Sketcher.Constraint("Perpendicular", 5, 7))
sketch5.addConstraint(Sketcher.Constraint("Perpendicular", 7, 9))
sketch5.addConstraint(Sketcher.Constraint("Perpendicular", 9, 10))
sketch5.addConstraint(Sketcher.Constraint("Perpendicular", 10, 11))
sketch5.addConstraint(Sketcher.Constraint("Perpendicular", 11, 15))
sketch5.addConstraint(Sketcher.Constraint("Parallel", 15, 16))
sketch5.addConstraint(Sketcher.Constraint("Perpendicular", 16, 17))
sketch5.addConstraint(Sketcher.Constraint("Perpendicular", 17, 19))
sketch5.addConstraint(Sketcher.Constraint("Perpendicular", 19, 20))
sketch5.addConstraint(Sketcher.Constraint("Parallel", 25, 26))
sketch5.addConstraint(Sketcher.Constraint("Perpendicular", 26, 27))
sketch5.addConstraint(Sketcher.Constraint("Perpendicular", 27, 28))
sketch5.addConstraint(Sketcher.Constraint("Perpendicular", 32, 33))
sketch5.addConstraint(Sketcher.Constraint("Perpendicular", 33, 34))
sketch5.addConstraint(Sketcher.Constraint("Horizontal", 6, 2, 17, 2))
sketch5.addConstraint(Sketcher.Constraint("Horizontal", 5, 2, 18, 2))
sketch5.addConstraint(Sketcher.Constraint("Vertical", 8, 2, 34, 2))
sketch5.addConstraint(Sketcher.Constraint("Vertical", 7, 2, 35, 2))
sketch5.addConstraint(Sketcher.Constraint("Equal", 30, 1))
sketch5.addConstraint(Sketcher.Constraint("Equal", 35, 6))
sketch5.addConstraint(Sketcher.Constraint("Radius", 0, 1.5))
sketch5.addConstraint(Sketcher.Constraint("DistanceX", -1, 1, 0, 3, 24.4))
sketch5.addConstraint(Sketcher.Constraint("Distance", 4, 0.65))
sketch5.addConstraint(Sketcher.Constraint("DistanceX", -1, 1, 5, 2, 25.25))
sketch5.addConstraint(Sketcher.Constraint("DistanceX", 13, 1, 13, 2, 20.213622))
sketch5.addConstraint(Sketcher.Constraint("DistanceX", 16, 2, 11, 2, 10.560599))
sketch5.addConstraint(Sketcher.Constraint("DistanceX", 21, 2, 19, 2, 3.803301))
sketch5.addConstraint(Sketcher.Constraint("DistanceX", 35, 2, 27, 2, 7.450801))
sketch5.addConstraint(Sketcher.Constraint("Distance", 3, 4.17868))
sketch5.addConstraint(Sketcher.Constraint("DistanceY", -1, 1, 9, 2, 19.99123))
sketch5.addConstraint(Sketcher.Constraint("Distance", 32, 8.984942))
sketch5.setExpression("Constraints[81]", "Params.sketch5_radius")
sketch5.setExpression("Constraints[83]", "Params.sketch5_length")
pocket2 = body.newObject("PartDesign::Pocket", "Pocket001")
pocket2.Profile = sketch5
pocket2.setExpression("Length", "Params.pocket2_length")
pocket2.Reversed = True

# Sketch on XZ plane
sketch6 = body.newObject("Sketcher::SketchObject", "Sketch005")
sketch6.AttachmentSupport = (doc.getObject("XZ_Plane"), [""])
sketch6.MapMode = "FlatFace"
sketch6.AttachmentOffset = App.Placement(V(0, 0, 10), App.Rotation())
sketch6.addGeometry(Part.LineSegment(V(-14.936299, 5.79, 0), V(-11.818607, 5.79, 0)), False)
sketch6.addGeometry(Part.LineSegment(V(-11.818607, 5.79, 0), V(-10.259762, 3.09, 0)), False)
sketch6.addGeometry(Part.LineSegment(V(-10.259762, 3.09, 0), V(-11.818607, 0.39, 0)), False)
sketch6.addGeometry(Part.LineSegment(V(-11.818607, 0.39, 0), V(-14.936299, 0.39, 0)), False)
sketch6.addGeometry(Part.LineSegment(V(-14.936299, 0.39, 0), V(-16.495145, 3.09, 0)), False)
sketch6.addGeometry(Part.LineSegment(V(-16.495145, 3.09, 0), V(-14.936299, 5.79, 0)), False)
sketch6.addGeometry(Part.LineSegment(V(15.181393, 0.39, 0), V(12.063701, 0.39, 0)), False)
sketch6.addGeometry(Part.LineSegment(V(12.063701, 0.39, 0), V(10.504855, 3.09, 0)), False)
sketch6.addGeometry(Part.LineSegment(V(10.504855, 3.09, 0), V(12.063701, 5.79, 0)), False)
sketch6.addGeometry(Part.LineSegment(V(12.063701, 5.79, 0), V(15.181393, 5.79, 0)), False)
sketch6.addGeometry(Part.LineSegment(V(15.181393, 5.79, 0), V(16.740238, 3.09, 0)), False)
sketch6.addGeometry(Part.LineSegment(V(16.740238, 3.09, 0), V(15.181393, 0.39, 0)), False)
sketch6.addConstraint(Sketcher.Constraint("Coincident", 0, 2, 1, 1))
sketch6.addConstraint(Sketcher.Constraint("Coincident", 1, 2, 2, 1))
sketch6.addConstraint(Sketcher.Constraint("Coincident", 2, 2, 3, 1))
sketch6.addConstraint(Sketcher.Constraint("Coincident", 3, 2, 4, 1))
sketch6.addConstraint(Sketcher.Constraint("Coincident", 4, 2, 5, 1))
sketch6.addConstraint(Sketcher.Constraint("Coincident", 5, 2, 0, 1))
sketch6.addConstraint(Sketcher.Constraint("Coincident", 6, 2, 7, 1))
sketch6.addConstraint(Sketcher.Constraint("Coincident", 7, 2, 8, 1))
sketch6.addConstraint(Sketcher.Constraint("Coincident", 8, 2, 9, 1))
sketch6.addConstraint(Sketcher.Constraint("Coincident", 9, 2, 10, 1))
sketch6.addConstraint(Sketcher.Constraint("Coincident", 10, 2, 11, 1))
sketch6.addConstraint(Sketcher.Constraint("Coincident", 11, 2, 6, 1))
sketch6.addConstraint(Sketcher.Constraint("Horizontal", 0))
sketch6.addConstraint(Sketcher.Constraint("Horizontal", 3))
sketch6.addConstraint(Sketcher.Constraint("Horizontal", 6))
sketch6.addConstraint(Sketcher.Constraint("Horizontal", 9))
sketch6.addConstraint(Sketcher.Constraint("Parallel", 1, 4))
sketch6.addConstraint(Sketcher.Constraint("Parallel", 2, 5))
sketch6.addConstraint(Sketcher.Constraint("Parallel", 4, 7))
sketch6.addConstraint(Sketcher.Constraint("Parallel", 5, 8))
sketch6.addConstraint(Sketcher.Constraint("Parallel", 7, 10))
sketch6.addConstraint(Sketcher.Constraint("Parallel", 8, 11))
sketch6.addConstraint(Sketcher.Constraint("Horizontal", 1, 2, 4, 2))
sketch6.addConstraint(Sketcher.Constraint("Horizontal", 3, 2, 6, 2))
sketch6.addConstraint(Sketcher.Constraint("Horizontal", 4, 2, 7, 2))
sketch6.addConstraint(Sketcher.Constraint("Horizontal", 5, 2, 8, 2))
sketch6.addConstraint(Sketcher.Constraint("Horizontal", 7, 2, 10, 2))
sketch6.addConstraint(Sketcher.Constraint("Vertical", 0, 2, 2, 2))
sketch6.addConstraint(Sketcher.Constraint("Vertical", 3, 2, 5, 2))
sketch6.addConstraint(Sketcher.Constraint("Equal", 3, 6))
sketch6.addConstraint(Sketcher.Constraint("Angle", 1, Q("-60 deg")))
sketch6.addConstraint(Sketcher.Constraint("DistanceX", 3, 2, 6, 2, 27.0))
sketch6.addConstraint(Sketcher.Constraint("DistanceY", 1, 2, 0, 2, 2.7))
sketch6.addConstraint(Sketcher.Constraint("DistanceY", -1, 1, 0, 2, 5.79))
sketch6.addConstraint(Sketcher.Constraint("DistanceX", 0, 1, 0, 2, 3.117691))
sketch6.addConstraint(Sketcher.Constraint("DistanceX", 3, 2, -1, 1, 14.936299))
pocket3 = body.newObject("PartDesign::Pocket", "Pocket002")
pocket3.Profile = sketch6
pocket3.setExpression("Length", "Params.pocket3_length")

# Sketch on XZ plane
sketch7 = body.newObject("Sketcher::SketchObject", "Sketch006")
sketch7.AttachmentSupport = (doc.getObject("XZ_Plane"), [""])
sketch7.MapMode = "FlatFace"
sketch7.addGeometry(Part.LineSegment(V(-11.818607, 5.79, 0), V(-14.936299, 5.79, 0)), False)
sketch7.addGeometry(Part.LineSegment(V(-14.936299, 5.79, 0), V(-16.495145, 3.09, 0)), False)
sketch7.addGeometry(Part.LineSegment(V(-16.495145, 3.09, 0), V(-14.936299, 0.39, 0)), False)
sketch7.addGeometry(Part.LineSegment(V(-14.936299, 0.39, 0), V(-11.818607, 0.39, 0)), False)
sketch7.addGeometry(Part.LineSegment(V(-11.818607, 0.39, 0), V(-10.259762, 3.09, 0)), False)
sketch7.addGeometry(Part.LineSegment(V(-10.259762, 3.09, 0), V(-11.818607, 5.79, 0)), False)
sketch7.addGeometry(Part.LineSegment(V(12.063701, 0.39, 0), V(15.181393, 0.39, 0)), False)
sketch7.addGeometry(Part.LineSegment(V(15.181393, 0.39, 0), V(16.740238, 3.09, 0)), False)
sketch7.addGeometry(Part.LineSegment(V(16.740238, 3.09, 0), V(15.181393, 5.79, 0)), False)
sketch7.addGeometry(Part.LineSegment(V(15.181393, 5.79, 0), V(12.063701, 5.79, 0)), False)
sketch7.addGeometry(Part.LineSegment(V(12.063701, 5.79, 0), V(10.504855, 3.09, 0)), False)
sketch7.addGeometry(Part.LineSegment(V(10.504855, 3.09, 0), V(12.063701, 0.39, 0)), False)
sketch7.addConstraint(Sketcher.Constraint("Coincident", 0, 2, 1, 1))
sketch7.addConstraint(Sketcher.Constraint("Coincident", 1, 2, 2, 1))
sketch7.addConstraint(Sketcher.Constraint("Coincident", 2, 2, 3, 1))
sketch7.addConstraint(Sketcher.Constraint("Coincident", 3, 2, 4, 1))
sketch7.addConstraint(Sketcher.Constraint("Coincident", 4, 2, 5, 1))
sketch7.addConstraint(Sketcher.Constraint("Coincident", 5, 2, 0, 1))
sketch7.addConstraint(Sketcher.Constraint("Coincident", 6, 2, 7, 1))
sketch7.addConstraint(Sketcher.Constraint("Coincident", 7, 2, 8, 1))
sketch7.addConstraint(Sketcher.Constraint("Coincident", 8, 2, 9, 1))
sketch7.addConstraint(Sketcher.Constraint("Coincident", 9, 2, 10, 1))
sketch7.addConstraint(Sketcher.Constraint("Coincident", 10, 2, 11, 1))
sketch7.addConstraint(Sketcher.Constraint("Coincident", 11, 2, 6, 1))
sketch7.addConstraint(Sketcher.Constraint("Horizontal", 0))
sketch7.addConstraint(Sketcher.Constraint("Horizontal", 3))
sketch7.addConstraint(Sketcher.Constraint("Horizontal", 6))
sketch7.addConstraint(Sketcher.Constraint("Horizontal", 9))
sketch7.addConstraint(Sketcher.Constraint("Parallel", 1, 4))
sketch7.addConstraint(Sketcher.Constraint("Parallel", 2, 5))
sketch7.addConstraint(Sketcher.Constraint("Parallel", 4, 7))
sketch7.addConstraint(Sketcher.Constraint("Parallel", 5, 8))
sketch7.addConstraint(Sketcher.Constraint("Parallel", 7, 10))
sketch7.addConstraint(Sketcher.Constraint("Parallel", 8, 11))
sketch7.addConstraint(Sketcher.Constraint("Horizontal", 1, 2, 4, 2))
sketch7.addConstraint(Sketcher.Constraint("Horizontal", 3, 2, 6, 2))
sketch7.addConstraint(Sketcher.Constraint("Horizontal", 4, 2, 7, 2))
sketch7.addConstraint(Sketcher.Constraint("Horizontal", 5, 2, 8, 2))
sketch7.addConstraint(Sketcher.Constraint("Horizontal", 7, 2, 10, 2))
sketch7.addConstraint(Sketcher.Constraint("Vertical", 0, 2, 2, 2))
sketch7.addConstraint(Sketcher.Constraint("Vertical", 3, 2, 5, 2))
sketch7.addConstraint(Sketcher.Constraint("Equal", 3, 6))
sketch7.addConstraint(Sketcher.Constraint("Angle", 1, Q("-120 deg")))
sketch7.addConstraint(Sketcher.Constraint("DistanceX", 3, 2, 6, 2, 27.0))
sketch7.addConstraint(Sketcher.Constraint("DistanceY", 1, 2, 0, 2, 2.7))
sketch7.addConstraint(Sketcher.Constraint("DistanceY", -1, 1, 0, 2, 5.79))
sketch7.addConstraint(Sketcher.Constraint("DistanceX", 0, 2, 0, 1, 3.117691))
sketch7.addConstraint(Sketcher.Constraint("DistanceX", 0, 2, -1, 1, 14.936299))
pocket4 = body.newObject("PartDesign::Pocket", "Pocket003")
pocket4.Profile = sketch7
pocket4.setExpression("Length", "Params.pocket4_length")

# Sketch on XY plane
sketch8 = body.newObject("Sketcher::SketchObject", "Sketch007")
sketch8.AttachmentSupport = (doc.getObject("XY_Plane"), [""])
sketch8.MapMode = "FlatFace"
sketch8.addGeometry(Part.LineSegment(V(-25.9, 3.9, 0), V(-26.4, 2.4, 0)), False)
sketch8.addGeometry(Part.LineSegment(V(-26.4, 2.4, 0), V(-25.9, 2.4, 0)), False)
sketch8.addGeometry(Part.LineSegment(V(-25.9, 2.4, 0), V(-25.9, 3.9, 0)), False)
sketch8.addGeometry(Part.LineSegment(V(26.4, 2.4, 0), V(25.9, 3.9, 0)), False)
sketch8.addGeometry(Part.LineSegment(V(25.9, 3.9, 0), V(25.9, 2.4, 0)), False)
sketch8.addGeometry(Part.LineSegment(V(25.9, 2.4, 0), V(26.4, 2.4, 0)), False)
sketch8.addConstraint(Sketcher.Constraint("Coincident", 0, 2, 1, 1))
sketch8.addConstraint(Sketcher.Constraint("Coincident", 1, 2, 2, 1))
sketch8.addConstraint(Sketcher.Constraint("Coincident", 2, 2, 0, 1))
sketch8.addConstraint(Sketcher.Constraint("Coincident", 3, 2, 4, 1))
sketch8.addConstraint(Sketcher.Constraint("Coincident", 4, 2, 5, 1))
sketch8.addConstraint(Sketcher.Constraint("Coincident", 5, 2, 3, 1))
sketch8.addConstraint(Sketcher.Constraint("Horizontal", 1))
sketch8.addConstraint(Sketcher.Constraint("Vertical", 2))
sketch8.addConstraint(Sketcher.Constraint("Vertical", 4))
sketch8.addConstraint(Sketcher.Constraint("Horizontal", 5))
sketch8.addConstraint(Sketcher.Constraint("Symmetric", 2, 2, 3, 2, -2))
sketch8.addConstraint(Sketcher.Constraint("Symmetric", 0, 2, 5, 2, -2))
sketch8.addConstraint(Sketcher.Constraint("DistanceX", 1, 1, 1, 2, 0.5))
sketch8.addConstraint(Sketcher.Constraint("DistanceY", 2, 1, 2, 2, 1.5))
sketch8.addConstraint(Sketcher.Constraint("DistanceX", 0, 2, -1, 1, 26.4))
sketch8.addConstraint(Sketcher.Constraint("DistanceY", -1, 1, 0, 2, 2.4))
sketch8.setExpression("Constraints[12]", "Params.sketch8_width")
sketch8.setExpression("Constraints[13]", "Params.sketch8_height")
pad4 = body.newObject("PartDesign::Pad", "Pad003")
pad4.Profile = sketch8
pad4.setExpression("Length", "Params.pad4_length")
pad4.Midplane = True

doc.recompute()
